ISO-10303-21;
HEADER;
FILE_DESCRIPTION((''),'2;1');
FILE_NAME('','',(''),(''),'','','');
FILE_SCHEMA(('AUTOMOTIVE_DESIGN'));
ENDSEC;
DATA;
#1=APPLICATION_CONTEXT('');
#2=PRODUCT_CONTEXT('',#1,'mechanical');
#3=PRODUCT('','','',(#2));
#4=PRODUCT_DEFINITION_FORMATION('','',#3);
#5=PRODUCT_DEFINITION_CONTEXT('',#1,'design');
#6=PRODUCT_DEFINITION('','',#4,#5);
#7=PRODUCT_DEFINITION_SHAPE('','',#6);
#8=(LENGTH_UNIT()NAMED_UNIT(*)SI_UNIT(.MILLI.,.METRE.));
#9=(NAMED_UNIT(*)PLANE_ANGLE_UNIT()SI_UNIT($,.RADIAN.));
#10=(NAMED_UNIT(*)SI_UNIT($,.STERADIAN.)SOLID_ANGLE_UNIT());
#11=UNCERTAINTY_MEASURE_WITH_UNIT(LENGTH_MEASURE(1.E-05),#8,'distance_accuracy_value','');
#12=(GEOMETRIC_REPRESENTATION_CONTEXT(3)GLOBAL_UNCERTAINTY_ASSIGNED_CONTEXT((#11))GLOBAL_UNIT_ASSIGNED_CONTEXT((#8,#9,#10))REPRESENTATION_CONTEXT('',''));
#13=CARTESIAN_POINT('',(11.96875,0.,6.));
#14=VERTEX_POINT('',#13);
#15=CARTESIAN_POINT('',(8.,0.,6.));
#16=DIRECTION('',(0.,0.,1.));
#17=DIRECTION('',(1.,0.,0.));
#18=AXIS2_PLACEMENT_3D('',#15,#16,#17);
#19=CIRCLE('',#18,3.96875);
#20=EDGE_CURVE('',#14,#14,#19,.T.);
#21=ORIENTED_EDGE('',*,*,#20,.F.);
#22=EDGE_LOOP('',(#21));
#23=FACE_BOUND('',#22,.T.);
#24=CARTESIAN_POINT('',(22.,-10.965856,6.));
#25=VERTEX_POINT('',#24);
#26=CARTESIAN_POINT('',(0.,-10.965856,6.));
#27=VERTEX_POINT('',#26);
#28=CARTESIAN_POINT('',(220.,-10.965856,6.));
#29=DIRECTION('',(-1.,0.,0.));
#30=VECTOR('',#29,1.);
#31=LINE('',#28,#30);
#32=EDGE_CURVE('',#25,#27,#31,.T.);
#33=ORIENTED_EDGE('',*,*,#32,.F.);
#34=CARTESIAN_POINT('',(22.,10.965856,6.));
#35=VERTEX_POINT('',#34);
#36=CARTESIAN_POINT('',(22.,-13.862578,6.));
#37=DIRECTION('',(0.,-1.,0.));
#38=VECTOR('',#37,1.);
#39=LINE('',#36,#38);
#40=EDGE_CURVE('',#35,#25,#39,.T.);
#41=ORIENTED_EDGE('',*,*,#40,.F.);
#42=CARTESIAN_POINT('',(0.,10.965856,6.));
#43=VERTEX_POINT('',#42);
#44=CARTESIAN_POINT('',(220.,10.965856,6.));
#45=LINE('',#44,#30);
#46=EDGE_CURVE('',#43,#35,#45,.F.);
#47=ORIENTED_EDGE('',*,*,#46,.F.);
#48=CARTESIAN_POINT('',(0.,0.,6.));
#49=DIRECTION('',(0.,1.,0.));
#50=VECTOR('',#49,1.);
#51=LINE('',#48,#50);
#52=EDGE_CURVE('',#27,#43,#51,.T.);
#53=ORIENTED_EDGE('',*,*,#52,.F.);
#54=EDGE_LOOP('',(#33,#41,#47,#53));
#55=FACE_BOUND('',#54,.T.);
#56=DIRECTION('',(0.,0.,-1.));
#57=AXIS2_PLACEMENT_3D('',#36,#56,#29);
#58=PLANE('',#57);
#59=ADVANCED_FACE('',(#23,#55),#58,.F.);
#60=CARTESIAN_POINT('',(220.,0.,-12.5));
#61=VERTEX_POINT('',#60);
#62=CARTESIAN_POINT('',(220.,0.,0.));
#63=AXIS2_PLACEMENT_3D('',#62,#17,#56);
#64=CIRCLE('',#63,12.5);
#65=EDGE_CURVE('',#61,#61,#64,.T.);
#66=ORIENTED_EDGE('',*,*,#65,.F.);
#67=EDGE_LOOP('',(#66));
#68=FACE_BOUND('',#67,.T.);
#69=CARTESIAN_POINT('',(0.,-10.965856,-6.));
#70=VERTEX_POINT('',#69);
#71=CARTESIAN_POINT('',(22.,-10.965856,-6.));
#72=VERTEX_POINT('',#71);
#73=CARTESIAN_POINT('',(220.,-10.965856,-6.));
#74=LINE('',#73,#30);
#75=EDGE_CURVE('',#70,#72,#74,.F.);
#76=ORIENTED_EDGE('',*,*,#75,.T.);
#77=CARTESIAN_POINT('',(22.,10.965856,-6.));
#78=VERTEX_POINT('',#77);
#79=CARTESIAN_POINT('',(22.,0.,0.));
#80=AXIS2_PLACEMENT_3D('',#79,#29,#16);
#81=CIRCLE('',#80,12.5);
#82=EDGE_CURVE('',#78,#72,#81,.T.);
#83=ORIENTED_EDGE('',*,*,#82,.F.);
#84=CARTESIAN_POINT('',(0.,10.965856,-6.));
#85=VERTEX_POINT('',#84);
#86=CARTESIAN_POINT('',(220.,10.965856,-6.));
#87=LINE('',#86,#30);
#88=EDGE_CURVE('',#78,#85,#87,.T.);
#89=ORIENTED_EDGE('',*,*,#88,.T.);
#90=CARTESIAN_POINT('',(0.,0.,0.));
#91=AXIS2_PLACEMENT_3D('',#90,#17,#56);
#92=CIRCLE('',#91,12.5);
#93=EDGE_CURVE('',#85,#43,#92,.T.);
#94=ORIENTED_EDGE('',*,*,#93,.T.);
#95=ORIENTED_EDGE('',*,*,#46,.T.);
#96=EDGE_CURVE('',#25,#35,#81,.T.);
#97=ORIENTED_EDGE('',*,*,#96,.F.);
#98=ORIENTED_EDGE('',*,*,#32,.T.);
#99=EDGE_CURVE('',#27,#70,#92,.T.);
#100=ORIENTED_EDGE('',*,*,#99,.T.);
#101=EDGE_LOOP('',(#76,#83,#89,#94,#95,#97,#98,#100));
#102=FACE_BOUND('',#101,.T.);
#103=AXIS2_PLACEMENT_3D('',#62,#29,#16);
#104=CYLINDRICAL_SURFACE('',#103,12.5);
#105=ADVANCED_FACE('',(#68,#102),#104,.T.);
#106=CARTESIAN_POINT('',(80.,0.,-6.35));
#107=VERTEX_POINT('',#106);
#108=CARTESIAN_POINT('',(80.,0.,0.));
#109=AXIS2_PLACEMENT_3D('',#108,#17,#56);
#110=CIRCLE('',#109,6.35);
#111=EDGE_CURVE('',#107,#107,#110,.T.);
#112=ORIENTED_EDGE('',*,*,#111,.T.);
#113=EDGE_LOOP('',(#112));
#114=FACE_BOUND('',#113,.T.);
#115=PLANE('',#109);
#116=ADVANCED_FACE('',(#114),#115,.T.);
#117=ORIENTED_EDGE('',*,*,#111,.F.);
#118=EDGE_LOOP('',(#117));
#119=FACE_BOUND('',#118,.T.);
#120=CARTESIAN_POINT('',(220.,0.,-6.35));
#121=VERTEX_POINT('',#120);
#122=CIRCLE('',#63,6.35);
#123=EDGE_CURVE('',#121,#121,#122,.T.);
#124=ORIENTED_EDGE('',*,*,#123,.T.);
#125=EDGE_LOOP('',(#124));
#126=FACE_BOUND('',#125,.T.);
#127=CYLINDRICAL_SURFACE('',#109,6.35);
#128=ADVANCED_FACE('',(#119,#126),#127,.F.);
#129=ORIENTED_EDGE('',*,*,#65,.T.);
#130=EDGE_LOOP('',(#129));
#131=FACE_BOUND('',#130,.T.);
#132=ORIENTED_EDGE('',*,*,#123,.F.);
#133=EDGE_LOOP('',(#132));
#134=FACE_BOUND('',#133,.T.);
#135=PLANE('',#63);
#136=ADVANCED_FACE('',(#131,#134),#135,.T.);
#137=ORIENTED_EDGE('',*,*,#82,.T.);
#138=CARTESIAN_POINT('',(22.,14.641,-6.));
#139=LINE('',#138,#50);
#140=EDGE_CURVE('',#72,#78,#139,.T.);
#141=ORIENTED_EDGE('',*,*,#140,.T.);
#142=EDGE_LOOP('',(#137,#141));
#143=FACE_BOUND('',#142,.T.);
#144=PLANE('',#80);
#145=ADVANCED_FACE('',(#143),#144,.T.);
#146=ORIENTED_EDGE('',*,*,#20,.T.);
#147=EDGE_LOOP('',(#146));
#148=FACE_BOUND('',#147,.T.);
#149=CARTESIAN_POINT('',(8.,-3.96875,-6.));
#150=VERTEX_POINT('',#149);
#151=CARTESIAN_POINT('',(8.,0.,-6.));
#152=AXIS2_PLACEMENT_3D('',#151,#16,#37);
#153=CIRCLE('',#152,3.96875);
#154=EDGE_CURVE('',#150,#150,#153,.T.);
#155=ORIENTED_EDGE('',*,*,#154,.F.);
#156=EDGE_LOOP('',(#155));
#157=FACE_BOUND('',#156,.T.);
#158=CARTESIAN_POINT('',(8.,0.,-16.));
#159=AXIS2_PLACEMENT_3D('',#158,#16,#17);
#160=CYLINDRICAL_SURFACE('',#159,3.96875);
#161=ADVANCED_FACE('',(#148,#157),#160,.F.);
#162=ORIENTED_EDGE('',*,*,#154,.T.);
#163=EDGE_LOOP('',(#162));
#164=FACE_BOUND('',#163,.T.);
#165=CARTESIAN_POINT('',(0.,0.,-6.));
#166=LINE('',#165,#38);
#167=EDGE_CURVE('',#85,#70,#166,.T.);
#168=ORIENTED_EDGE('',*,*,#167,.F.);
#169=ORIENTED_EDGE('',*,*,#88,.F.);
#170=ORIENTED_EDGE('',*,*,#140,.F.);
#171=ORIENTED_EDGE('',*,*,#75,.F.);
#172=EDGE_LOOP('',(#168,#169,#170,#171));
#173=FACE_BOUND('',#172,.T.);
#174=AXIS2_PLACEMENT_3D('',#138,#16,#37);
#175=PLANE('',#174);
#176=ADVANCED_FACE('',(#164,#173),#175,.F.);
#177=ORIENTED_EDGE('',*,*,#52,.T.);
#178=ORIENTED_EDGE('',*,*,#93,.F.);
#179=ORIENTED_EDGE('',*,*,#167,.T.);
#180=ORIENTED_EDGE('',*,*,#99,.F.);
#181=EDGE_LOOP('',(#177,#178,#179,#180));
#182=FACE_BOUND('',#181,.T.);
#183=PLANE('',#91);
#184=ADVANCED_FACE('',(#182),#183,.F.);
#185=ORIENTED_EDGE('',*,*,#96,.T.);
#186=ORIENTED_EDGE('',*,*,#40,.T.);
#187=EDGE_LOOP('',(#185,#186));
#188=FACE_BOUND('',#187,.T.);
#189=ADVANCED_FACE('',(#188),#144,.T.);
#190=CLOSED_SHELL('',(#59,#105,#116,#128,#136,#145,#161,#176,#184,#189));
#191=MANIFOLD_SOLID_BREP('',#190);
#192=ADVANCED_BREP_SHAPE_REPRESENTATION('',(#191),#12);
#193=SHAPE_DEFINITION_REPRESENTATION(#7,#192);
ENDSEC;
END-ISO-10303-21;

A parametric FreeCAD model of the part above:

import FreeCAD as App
import Part
import Sketcher

V = App.Vector
Q = App.Units.Quantity

doc = App.newDocument("Part")
params = doc.addObject("Spreadsheet::Sheet", "Params")
for row, (alias, value) in enumerate([
    ("sketch1_diameter", "25 mm"),
    ("pad1_length", "220 mm"),
    ("pocket1_length", "22 mm"),
    ("pocket2_length", "22 mm"),
    ("sketch4_diameter", "12.7 mm"),
    ("pocket3_length", "140 mm"),
], start=1):
    params.set(f"A{row}", alias)
    params.set(f"B{row}", "=" + value)
    params.setAlias(f"B{row}", alias)

body = doc.addObject("PartDesign::Body", "Body")

sketch1 = body.newObject("Sketcher::SketchObject", "Sketch")
sketch1.AttachmentSupport = (doc.getObject("YZ_Plane"), [""])
sketch1.MapMode = "FlatFace"
sketch1.addGeometry(Part.Circle(V(0, 0, 0), V(0, 0, 1), 12.5), False)
sketch1.addConstraint([
    Sketcher.Constraint("Coincident", 0, 3, -1, 1),
    Sketcher.Constraint("Diameter", 0, Q("25 mm")),
])
sketch1.setExpression("Constraints[1]", "Params.sketch1_diameter")
pad1 = body.newObject("PartDesign::Pad", "Pad")
pad1.Profile = sketch1
pad1.setExpression("Length", "Params.pad1_length")

sketch2 = body.newObject("Sketcher::SketchObject", "Sketch001")
sketch2.AttachmentSupport = (doc.getObject("YZ_Plane"), [""])
sketch2.MapMode = "FlatFace"
sketch2.addGeometry([
    Part.LineSegment(V(14.641, -13.842465, 0), V(-13.862578, -13.842465, 0)),
    Part.LineSegment(V(-13.862578, -13.842465, 0), V(-13.862578, -6, 0)),
    Part.LineSegment(V(-13.862578, -6, 0), V(14.641, -6, 0)),
    Part.LineSegment(V(14.641, -6, 0), V(14.641, -13.842465, 0)),
    Part.LineSegment(V(15.437189, 6, 0), V(-13.862578, 6, 0)),
    Part.LineSegment(V(-13.862578, 6, 0), V(-13.862578, 13.563799, 0)),
    Part.LineSegment(V(-13.862578, 13.563799, 0), V(15.437189, 13.563799, 0)),
    Part.LineSegment(V(15.437189, 13.563799, 0), V(15.437189, 6, 0)),
], False)
sketch2.addConstraint([
    Sketcher.Constraint("Coincident", 0, 2, 1, 1),
    Sketcher.Constraint("Coincident", 1, 2, 2, 1),
    Sketcher.Constraint("Coincident", 2, 2, 3, 1),
    Sketcher.Constraint("Coincident", 3, 2, 0, 1),
    Sketcher.Constraint("Coincident", 4, 2, 5, 1),
    Sketcher.Constraint("Coincident", 5, 2, 6, 1),
    Sketcher.Constraint("Coincident", 6, 2, 7, 1),
    Sketcher.Constraint("Coincident", 7, 2, 4, 1),
    Sketcher.Constraint("Horizontal", 0),
    Sketcher.Constraint("Vertical", 1),
    Sketcher.Constraint("Horizontal", 2),
    Sketcher.Constraint("Vertical", 3),
    Sketcher.Constraint("Horizontal", 4),
    Sketcher.Constraint("Vertical", 5),
    Sketcher.Constraint("Horizontal", 6),
    Sketcher.Constraint("Vertical", 7),
    Sketcher.Constraint("Symmetric", 1, 2, 4, 2, -1),
    Sketcher.Constraint("DistanceY", 1, 2, -1, 1, Q("6 mm")),
    Sketcher.Constraint("DistanceY", 5, 1, 5, 2, Q("7.563799 mm")),
    Sketcher.Constraint("DistanceX", -1, 1, 2, 2, Q("14.641 mm")),
    Sketcher.Constraint("DistanceX", 0, 2, 0, 1, Q("28.503578 mm")),
    Sketcher.Constraint("DistanceX", 4, 2, 4, 1, Q("29.299767 mm")),
    Sketcher.Constraint("DistanceY", 1, 1, 1, 2, Q("7.842465 mm")),
])
pocket1 = body.newObject("PartDesign::Pocket", "Pocket")
pocket1.Profile = sketch2
pocket1.setExpression("Length", "Params.pocket1_length")
pocket1.Reversed = True

sketch3 = body.newObject("Sketcher::SketchObject", "Sketch002")
sketch3.AttachmentSupport = (doc.getObject("XY_Plane"), [""])
sketch3.MapMode = "FlatFace"
sketch3.AttachmentOffset = App.Placement(V(0, 0, 6), App.Rotation())
sketch3.addGeometry(Part.Circle(V(8, 0, 0), V(0, 0, 1), 3.96875), False)
sketch3.addConstraint([
    Sketcher.Constraint("PointOnObject", 0, 3, -1),
    Sketcher.Constraint("DistanceX", -1, 1, 0, 3, Q("8 mm")),
    Sketcher.Constraint("Diameter", 0, Q("7.9375 mm")),
])
pocket2 = body.newObject("PartDesign::Pocket", "Pocket001")
pocket2.Profile = sketch3
pocket2.setExpression("Length", "Params.pocket2_length")

sketch4 = body.newObject("Sketcher::SketchObject", "Sketch003")
sketch4.AttachmentSupport = (doc.getObject("YZ_Plane"), [""])
sketch4.MapMode = "FlatFace"
sketch4.AttachmentOffset = App.Placement(V(0, 0, 220), App.Rotation())
sketch4.addGeometry(Part.Circle(V(0, 0, 0), V(0, 0, 1), 6.35), False)
sketch4.addConstraint([
    Sketcher.Constraint("Coincident", 0, 3, -1, 1),
    Sketcher.Constraint("Diameter", 0, Q("12.7 mm")),
])
sketch4.setExpression("Constraints[1]", "Params.sketch4_diameter")
pocket3 = body.newObject("PartDesign::Pocket", "Pocket002")
pocket3.Profile = sketch4
pocket3.setExpression("Length", "Params.pocket3_length")

doc.recompute()
